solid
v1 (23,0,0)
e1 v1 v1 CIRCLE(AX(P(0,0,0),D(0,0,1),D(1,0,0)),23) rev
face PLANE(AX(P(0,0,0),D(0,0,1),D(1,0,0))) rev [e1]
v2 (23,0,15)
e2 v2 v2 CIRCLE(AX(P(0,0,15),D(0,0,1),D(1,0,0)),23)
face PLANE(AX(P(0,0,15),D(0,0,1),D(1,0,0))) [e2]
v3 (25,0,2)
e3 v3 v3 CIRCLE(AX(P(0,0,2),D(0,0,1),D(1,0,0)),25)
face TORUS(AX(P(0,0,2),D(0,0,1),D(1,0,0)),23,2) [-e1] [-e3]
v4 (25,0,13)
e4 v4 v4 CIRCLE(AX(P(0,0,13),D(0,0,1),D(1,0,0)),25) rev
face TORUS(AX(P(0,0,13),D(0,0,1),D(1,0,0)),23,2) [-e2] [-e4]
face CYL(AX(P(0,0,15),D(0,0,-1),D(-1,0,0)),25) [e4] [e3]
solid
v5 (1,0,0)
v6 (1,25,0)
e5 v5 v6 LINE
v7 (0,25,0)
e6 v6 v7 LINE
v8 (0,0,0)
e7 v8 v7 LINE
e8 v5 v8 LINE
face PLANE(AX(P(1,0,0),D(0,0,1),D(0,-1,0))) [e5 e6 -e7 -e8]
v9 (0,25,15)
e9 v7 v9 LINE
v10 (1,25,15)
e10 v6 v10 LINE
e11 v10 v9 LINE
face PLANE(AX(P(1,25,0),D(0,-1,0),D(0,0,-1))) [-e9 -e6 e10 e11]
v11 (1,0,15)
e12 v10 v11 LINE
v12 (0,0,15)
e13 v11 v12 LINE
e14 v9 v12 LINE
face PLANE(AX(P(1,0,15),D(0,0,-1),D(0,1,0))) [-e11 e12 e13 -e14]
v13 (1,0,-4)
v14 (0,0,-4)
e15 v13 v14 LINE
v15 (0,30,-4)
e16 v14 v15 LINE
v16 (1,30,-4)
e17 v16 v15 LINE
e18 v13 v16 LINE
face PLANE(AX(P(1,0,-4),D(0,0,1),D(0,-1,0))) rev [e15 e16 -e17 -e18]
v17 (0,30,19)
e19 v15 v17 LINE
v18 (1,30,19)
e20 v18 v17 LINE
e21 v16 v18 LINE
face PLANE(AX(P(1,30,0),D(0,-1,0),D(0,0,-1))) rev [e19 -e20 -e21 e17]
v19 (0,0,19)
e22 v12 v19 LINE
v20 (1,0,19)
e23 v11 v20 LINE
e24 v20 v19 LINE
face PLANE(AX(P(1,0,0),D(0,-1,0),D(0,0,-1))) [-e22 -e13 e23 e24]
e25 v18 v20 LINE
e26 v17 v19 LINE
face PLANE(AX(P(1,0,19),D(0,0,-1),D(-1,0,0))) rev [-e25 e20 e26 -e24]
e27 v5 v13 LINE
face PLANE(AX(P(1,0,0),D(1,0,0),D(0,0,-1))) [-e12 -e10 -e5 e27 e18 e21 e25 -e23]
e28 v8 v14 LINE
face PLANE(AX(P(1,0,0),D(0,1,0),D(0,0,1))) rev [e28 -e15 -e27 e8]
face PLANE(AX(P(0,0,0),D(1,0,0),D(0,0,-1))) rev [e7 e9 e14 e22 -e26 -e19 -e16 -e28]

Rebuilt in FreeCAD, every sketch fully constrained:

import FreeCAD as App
import Part
import Sketcher


def edges_at(feature, points):
    """Names of the edges that pass closest to the given points."""
    edges = feature.Shape.Edges
    near = lambda p: min(range(len(edges)), key=lambda i: edges[i].distToShape(Part.Vertex(*p))[0])
    return sorted({f"Edge{near(p) + 1}" for p in points})

doc = App.newDocument("Part")
body = doc.addObject("PartDesign::Body", "Body")

# Sketch on XY plane
sketch1 = doc.addObject("Sketcher::SketchObject", "Sketch")
body.addObject(sketch1)
sketch1.AttachmentSupport = (doc.XY_Plane, [""])
sketch1.MapMode = "FlatFace"
sketch1.addGeometry(Part.Circle(App.Vector(0, 0, 0), App.Vector(0, 0, 1), 25), False)
sketch1.addConstraint([
    Sketcher.Constraint("Coincident", 0, 3, -1, 1),
    Sketcher.Constraint("Diameter", 0, 50.0),
])
pad1 = doc.addObject("PartDesign::Pad", "Pad")
body.addObject(pad1)
pad1.Profile = sketch1
pad1.Length = 15
doc.recompute()

fillet = doc.addObject("PartDesign::Fillet", "Fillet")
body.addObject(fillet)
fillet.Base = (pad1, edges_at(pad1, [(-25, 0, 0), (-25, 0, 15)]))
fillet.Radius = 2
body2 = doc.addObject("PartDesign::Body", "Body001")

# Sketch on YZ plane
sketch2 = doc.addObject("Sketcher::SketchObject", "Sketch001")
body2.addObject(sketch2)
sketch2.AttachmentSupport = (doc.getObject("YZ_Plane001"), [""])
sketch2.MapMode = "FlatFace"
sketch2.addGeometry([
    Part.LineSegment(App.Vector(0, 15, 0), App.Vector(25, 15, 0)),  # 0
    Part.LineSegment(App.Vector(25, 15, 0), App.Vector(25, 0, 0)),  # 1
    Part.LineSegment(App.Vector(25, 0, 0), App.Vector(0, 0, 0)),  # 2
    Part.LineSegment(App.Vector(0, 0, 0), App.Vector(0, -4, 0)),  # 3
    Part.LineSegment(App.Vector(0, -4, 0), App.Vector(30, -4, 0)),  # 4
    Part.LineSegment(App.Vector(30, -4, 0), App.Vector(30, 19, 0)),  # 5
    Part.LineSegment(App.Vector(30, 19, 0), App.Vector(0, 19, 0)),  # 6
    Part.LineSegment(App.Vector(0, 19, 0), App.Vector(0, 15, 0)),  # 7
], False)
sketch2.addConstraint([
    Sketcher.Constraint("Coincident", 0, 2, 1, 1),
    Sketcher.Constraint("Coincident", 1, 2, 2, 1),
    Sketcher.Constraint("Coincident", 2, 2, 3, 1),
    Sketcher.Constraint("Coincident", 3, 2, 4, 1),
    Sketcher.Constraint("Coincident", 4, 2, 5, 1),
    Sketcher.Constraint("Coincident", 5, 2, 6, 1),
    Sketcher.Constraint("Coincident", 6, 2, 7, 1),
    Sketcher.Constraint("Coincident", 7, 2, 0, 1),
    Sketcher.Constraint("Horizontal", 0),
    Sketcher.Constraint("Vertical", 1),
    Sketcher.Constraint("Horizontal", 2),
    Sketcher.Constraint("Vertical", 3),
    Sketcher.Constraint("Horizontal", 4),
    Sketcher.Constraint("Vertical", 5),
    Sketcher.Constraint("Horizontal", 6),
    Sketcher.Constraint("Vertical", 7),
    Sketcher.Constraint("Coincident", 2, 2, -1, 1),
    Sketcher.Constraint("PointOnObject", 6, 2, -2),
    Sketcher.Constraint("Equal", 3, 7),
    Sketcher.Constraint("DistanceX", 0, 1, 0, 2, 25.0),
    Sketcher.Constraint("DistanceX", 4, 1, 4, 2, 30.0),
    Sketcher.Constraint("DistanceY", 1, 2, 1, 1, 15.0),
    Sketcher.Constraint("DistanceY", 3, 2, 3, 1, 4.0),
])
pad2 = doc.addObject("PartDesign::Pad", "Pad001")
body2.addObject(pad2)
pad2.Profile = sketch2
pad2.Length = 1

doc.recompute()
